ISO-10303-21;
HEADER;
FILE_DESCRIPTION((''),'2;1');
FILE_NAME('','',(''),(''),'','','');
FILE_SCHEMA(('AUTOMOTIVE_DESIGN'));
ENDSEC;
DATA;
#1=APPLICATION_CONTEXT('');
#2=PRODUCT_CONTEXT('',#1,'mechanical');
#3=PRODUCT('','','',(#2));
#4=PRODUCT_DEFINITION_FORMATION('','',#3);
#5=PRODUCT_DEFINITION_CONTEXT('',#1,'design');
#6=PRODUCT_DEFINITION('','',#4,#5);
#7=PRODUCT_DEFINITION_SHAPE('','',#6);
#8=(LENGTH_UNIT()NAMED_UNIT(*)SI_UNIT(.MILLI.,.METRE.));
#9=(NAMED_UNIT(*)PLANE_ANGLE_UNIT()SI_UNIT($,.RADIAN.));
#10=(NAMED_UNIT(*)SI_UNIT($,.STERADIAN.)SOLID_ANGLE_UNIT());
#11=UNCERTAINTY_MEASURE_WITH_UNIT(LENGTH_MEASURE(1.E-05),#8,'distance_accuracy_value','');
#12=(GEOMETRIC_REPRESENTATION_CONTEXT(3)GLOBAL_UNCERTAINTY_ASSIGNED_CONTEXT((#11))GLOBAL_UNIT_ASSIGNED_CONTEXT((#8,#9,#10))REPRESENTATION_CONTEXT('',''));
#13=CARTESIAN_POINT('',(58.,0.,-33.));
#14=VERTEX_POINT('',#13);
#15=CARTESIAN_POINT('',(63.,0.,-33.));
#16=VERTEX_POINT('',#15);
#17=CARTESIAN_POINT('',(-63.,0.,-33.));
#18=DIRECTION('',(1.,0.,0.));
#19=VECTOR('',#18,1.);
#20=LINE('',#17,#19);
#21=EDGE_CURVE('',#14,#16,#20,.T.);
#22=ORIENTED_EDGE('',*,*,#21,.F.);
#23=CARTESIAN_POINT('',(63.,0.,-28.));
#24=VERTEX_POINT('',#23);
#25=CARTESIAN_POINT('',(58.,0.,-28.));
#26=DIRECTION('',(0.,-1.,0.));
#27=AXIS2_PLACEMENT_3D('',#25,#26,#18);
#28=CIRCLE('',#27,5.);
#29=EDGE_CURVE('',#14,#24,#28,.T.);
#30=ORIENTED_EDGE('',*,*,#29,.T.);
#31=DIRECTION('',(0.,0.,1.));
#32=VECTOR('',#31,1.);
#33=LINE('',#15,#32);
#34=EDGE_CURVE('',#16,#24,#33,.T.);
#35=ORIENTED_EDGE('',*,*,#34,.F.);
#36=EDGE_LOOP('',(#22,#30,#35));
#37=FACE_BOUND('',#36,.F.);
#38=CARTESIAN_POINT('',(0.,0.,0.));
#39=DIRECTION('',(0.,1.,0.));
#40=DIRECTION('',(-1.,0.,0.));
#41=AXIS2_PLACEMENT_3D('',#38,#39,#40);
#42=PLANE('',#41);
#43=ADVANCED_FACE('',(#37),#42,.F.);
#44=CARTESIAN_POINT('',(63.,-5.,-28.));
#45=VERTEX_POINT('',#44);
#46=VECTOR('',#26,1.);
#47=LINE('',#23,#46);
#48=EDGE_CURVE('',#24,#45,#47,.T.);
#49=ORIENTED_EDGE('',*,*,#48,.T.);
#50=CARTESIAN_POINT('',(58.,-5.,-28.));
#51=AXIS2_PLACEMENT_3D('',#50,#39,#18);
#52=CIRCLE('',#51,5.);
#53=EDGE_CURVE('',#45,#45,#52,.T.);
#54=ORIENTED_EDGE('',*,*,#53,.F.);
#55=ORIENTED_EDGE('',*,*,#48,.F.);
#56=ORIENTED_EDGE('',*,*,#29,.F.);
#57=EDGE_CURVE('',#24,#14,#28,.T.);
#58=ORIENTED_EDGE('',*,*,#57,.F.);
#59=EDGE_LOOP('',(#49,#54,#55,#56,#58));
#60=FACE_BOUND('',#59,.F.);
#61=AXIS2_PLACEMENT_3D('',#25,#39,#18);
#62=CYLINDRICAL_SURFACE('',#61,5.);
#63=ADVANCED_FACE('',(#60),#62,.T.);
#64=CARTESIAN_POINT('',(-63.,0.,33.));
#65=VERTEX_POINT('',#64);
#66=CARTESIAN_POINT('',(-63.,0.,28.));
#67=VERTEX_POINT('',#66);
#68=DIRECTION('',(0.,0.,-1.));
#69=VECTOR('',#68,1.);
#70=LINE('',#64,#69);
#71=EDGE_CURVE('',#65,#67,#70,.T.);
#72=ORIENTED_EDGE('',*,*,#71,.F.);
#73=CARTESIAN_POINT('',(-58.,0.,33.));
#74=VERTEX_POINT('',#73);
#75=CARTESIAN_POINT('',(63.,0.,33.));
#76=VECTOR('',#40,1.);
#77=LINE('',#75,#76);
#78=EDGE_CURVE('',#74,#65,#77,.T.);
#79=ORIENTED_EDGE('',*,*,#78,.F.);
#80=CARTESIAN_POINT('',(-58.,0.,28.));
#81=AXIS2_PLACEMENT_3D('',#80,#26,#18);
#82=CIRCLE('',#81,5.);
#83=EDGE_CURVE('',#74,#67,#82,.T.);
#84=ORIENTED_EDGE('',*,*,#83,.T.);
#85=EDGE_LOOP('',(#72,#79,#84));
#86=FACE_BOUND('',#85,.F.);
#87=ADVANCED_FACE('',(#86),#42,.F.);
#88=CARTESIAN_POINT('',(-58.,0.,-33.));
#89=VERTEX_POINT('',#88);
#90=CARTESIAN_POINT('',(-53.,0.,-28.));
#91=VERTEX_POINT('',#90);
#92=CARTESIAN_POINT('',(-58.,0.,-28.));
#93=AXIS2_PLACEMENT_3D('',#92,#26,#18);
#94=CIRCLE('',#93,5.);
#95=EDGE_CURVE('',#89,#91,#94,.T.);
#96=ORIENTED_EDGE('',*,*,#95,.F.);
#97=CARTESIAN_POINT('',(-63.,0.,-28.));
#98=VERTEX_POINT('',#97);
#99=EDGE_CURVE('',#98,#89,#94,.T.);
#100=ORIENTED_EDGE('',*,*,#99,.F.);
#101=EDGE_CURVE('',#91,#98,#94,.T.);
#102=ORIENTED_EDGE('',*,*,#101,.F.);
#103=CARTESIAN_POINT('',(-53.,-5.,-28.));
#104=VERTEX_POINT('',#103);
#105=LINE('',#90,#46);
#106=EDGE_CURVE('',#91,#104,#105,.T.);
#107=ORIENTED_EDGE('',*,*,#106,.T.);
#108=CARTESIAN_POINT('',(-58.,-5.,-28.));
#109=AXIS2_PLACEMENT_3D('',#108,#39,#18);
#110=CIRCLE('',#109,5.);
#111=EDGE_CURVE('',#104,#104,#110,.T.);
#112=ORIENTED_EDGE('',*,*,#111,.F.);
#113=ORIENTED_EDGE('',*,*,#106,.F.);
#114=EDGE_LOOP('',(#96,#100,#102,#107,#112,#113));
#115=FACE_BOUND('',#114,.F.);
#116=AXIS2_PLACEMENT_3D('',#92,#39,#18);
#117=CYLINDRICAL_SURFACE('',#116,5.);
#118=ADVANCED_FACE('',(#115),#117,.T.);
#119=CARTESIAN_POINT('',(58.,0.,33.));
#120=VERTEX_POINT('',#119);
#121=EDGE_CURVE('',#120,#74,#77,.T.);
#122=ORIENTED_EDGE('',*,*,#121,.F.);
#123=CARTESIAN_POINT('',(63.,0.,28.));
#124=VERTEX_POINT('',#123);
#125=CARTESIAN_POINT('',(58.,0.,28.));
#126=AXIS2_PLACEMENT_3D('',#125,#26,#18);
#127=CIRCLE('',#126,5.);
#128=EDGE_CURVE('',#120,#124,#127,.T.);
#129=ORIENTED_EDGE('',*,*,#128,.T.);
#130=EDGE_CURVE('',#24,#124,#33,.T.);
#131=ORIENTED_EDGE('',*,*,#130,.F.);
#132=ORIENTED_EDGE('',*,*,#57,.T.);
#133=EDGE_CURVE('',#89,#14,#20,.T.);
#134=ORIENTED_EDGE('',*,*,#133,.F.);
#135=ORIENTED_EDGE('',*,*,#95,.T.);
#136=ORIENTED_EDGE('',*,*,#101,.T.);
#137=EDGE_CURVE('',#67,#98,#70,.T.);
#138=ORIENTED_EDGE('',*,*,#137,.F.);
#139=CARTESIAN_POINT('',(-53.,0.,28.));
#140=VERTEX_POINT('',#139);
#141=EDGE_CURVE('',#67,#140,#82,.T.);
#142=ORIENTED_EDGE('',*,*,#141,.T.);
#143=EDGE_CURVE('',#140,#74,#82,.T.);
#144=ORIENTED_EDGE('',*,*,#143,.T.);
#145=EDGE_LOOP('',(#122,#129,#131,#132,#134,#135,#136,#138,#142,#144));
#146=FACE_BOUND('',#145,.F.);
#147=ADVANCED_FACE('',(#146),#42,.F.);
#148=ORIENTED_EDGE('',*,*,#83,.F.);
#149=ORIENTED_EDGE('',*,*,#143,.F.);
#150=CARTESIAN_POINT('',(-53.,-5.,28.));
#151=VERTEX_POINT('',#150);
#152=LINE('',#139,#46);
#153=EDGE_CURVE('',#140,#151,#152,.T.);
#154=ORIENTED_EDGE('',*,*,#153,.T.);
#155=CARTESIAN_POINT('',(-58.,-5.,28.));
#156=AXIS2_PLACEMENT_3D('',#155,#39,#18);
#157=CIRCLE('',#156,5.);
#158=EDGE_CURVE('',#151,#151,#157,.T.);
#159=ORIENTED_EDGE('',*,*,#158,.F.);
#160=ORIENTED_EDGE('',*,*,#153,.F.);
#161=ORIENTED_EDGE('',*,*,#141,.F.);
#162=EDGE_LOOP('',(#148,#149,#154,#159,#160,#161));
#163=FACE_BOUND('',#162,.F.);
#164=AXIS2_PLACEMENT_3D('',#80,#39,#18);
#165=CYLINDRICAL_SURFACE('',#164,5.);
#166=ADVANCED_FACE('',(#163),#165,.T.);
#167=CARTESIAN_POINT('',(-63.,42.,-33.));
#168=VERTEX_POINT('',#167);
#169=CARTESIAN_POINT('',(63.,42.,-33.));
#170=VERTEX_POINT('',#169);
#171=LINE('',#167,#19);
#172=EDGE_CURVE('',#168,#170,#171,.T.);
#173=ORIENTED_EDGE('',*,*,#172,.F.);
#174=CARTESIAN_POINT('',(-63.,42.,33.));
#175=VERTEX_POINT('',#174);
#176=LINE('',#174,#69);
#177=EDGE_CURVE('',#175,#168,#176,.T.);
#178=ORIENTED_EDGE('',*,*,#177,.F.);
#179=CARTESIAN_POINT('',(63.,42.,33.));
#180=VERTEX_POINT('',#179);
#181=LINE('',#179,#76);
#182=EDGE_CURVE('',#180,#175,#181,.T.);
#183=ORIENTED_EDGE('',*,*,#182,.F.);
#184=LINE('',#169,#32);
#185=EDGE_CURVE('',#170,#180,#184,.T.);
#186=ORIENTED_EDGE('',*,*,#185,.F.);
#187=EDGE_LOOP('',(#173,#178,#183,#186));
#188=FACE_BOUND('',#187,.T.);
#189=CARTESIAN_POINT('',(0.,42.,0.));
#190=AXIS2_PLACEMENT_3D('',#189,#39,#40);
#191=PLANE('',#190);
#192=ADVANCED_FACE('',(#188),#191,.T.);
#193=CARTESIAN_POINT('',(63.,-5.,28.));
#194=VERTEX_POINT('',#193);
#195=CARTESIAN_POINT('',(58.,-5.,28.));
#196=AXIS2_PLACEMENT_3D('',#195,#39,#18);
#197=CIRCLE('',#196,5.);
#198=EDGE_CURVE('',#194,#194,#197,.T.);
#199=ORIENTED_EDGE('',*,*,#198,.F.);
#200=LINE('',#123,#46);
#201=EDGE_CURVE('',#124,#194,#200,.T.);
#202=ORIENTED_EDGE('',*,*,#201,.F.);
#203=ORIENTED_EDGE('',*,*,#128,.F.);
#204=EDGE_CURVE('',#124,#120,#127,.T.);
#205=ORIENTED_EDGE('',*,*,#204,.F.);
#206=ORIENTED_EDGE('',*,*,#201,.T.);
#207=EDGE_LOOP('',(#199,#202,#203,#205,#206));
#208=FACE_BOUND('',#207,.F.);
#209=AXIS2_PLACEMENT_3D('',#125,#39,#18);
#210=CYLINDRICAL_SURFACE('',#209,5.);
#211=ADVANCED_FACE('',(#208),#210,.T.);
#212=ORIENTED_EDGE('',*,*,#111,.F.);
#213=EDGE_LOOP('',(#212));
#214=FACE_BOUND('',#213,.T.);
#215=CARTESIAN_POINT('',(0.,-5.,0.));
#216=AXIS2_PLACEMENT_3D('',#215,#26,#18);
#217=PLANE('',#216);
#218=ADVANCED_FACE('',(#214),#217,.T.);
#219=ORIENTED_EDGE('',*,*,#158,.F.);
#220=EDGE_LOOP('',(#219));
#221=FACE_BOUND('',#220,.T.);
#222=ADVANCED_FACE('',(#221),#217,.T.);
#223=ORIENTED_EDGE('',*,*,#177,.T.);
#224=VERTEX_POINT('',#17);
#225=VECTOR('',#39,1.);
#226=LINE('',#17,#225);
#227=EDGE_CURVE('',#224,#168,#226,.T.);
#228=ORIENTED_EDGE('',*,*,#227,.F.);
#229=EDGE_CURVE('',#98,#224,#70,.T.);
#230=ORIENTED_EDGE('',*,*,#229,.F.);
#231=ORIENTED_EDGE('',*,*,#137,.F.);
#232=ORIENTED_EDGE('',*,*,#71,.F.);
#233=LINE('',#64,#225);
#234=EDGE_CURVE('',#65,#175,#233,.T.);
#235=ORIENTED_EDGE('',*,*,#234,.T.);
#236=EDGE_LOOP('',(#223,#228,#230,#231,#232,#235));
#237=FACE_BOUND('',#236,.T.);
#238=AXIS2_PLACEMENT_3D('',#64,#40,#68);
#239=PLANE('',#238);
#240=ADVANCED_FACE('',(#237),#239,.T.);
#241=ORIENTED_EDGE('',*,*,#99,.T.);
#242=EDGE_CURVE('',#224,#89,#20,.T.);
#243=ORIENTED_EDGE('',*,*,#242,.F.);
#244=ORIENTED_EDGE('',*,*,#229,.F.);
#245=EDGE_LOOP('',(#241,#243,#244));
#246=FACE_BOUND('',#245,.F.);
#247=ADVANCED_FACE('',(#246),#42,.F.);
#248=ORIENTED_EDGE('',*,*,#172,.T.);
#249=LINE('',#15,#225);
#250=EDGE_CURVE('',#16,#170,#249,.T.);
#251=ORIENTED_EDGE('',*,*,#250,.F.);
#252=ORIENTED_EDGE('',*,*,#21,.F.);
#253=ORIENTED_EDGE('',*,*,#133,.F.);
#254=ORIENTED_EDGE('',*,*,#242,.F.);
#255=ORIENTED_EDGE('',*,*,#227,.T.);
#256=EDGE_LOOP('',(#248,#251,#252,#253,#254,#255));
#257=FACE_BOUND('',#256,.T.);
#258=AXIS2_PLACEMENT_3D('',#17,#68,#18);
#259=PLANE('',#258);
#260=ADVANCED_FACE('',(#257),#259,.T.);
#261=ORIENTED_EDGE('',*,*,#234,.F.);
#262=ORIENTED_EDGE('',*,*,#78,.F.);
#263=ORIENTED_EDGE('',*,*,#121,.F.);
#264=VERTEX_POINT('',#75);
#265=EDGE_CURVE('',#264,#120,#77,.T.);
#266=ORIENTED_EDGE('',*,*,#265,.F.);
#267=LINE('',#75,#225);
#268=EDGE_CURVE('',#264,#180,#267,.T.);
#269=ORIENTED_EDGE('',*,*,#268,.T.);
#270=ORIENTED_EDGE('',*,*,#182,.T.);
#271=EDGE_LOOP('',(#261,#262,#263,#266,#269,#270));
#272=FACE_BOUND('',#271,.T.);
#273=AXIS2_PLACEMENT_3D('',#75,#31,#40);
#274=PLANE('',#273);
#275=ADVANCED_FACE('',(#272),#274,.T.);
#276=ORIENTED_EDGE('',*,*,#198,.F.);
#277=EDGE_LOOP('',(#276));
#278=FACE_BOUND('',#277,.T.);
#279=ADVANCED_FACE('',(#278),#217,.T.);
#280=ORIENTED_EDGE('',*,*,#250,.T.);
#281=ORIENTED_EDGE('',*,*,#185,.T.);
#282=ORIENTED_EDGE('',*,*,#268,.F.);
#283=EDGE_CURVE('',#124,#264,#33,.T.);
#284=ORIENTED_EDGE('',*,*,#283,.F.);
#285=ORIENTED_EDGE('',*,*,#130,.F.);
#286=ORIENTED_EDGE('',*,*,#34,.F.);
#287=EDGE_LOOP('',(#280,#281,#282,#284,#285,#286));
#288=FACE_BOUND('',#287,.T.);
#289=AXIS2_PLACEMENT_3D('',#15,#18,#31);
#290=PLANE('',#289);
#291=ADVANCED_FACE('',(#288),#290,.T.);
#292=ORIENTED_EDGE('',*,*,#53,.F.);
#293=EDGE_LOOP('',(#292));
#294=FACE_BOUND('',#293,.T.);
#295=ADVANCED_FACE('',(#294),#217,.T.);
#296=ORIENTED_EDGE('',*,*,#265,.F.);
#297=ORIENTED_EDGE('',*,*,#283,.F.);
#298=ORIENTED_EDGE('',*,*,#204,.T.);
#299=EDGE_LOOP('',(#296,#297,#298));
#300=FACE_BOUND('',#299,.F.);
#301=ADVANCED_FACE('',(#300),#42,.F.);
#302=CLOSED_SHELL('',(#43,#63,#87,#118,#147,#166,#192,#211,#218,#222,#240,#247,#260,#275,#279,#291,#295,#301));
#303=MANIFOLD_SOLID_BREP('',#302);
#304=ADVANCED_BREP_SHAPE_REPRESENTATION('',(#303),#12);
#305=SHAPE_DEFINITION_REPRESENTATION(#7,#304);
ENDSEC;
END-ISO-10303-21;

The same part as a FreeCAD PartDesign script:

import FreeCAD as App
import Part
import Sketcher

doc = App.newDocument("Part")
body = doc.addObject("PartDesign::Body", "Body")

# Sketch on XZ plane
sketch1 = doc.addObject("Sketcher::SketchObject", "Sketch")
body.addObject(sketch1)
sketch1.AttachmentSupport = (doc.XZ_Plane, [""])
sketch1.MapMode = "FlatFace"
sketch1.addGeometry([
    Part.LineSegment(App.Vector(63, -33, 0), App.Vector(-63, -33, 0)),
    Part.LineSegment(App.Vector(-63, -33, 0), App.Vector(-63, 33, 0)),
    Part.LineSegment(App.Vector(-63, 33, 0), App.Vector(63, 33, 0)),
    Part.LineSegment(App.Vector(63, 33, 0), App.Vector(63, -33, 0)),
], False)
sketch1.addConstraint([
    Sketcher.Constraint("Coincident", 0, 2, 1, 1),
    Sketcher.Constraint("Coincident", 1, 2, 2, 1),
    Sketcher.Constraint("Coincident", 2, 2, 3, 1),
    Sketcher.Constraint("Coincident", 3, 2, 0, 1),
    Sketcher.Constraint("Horizontal", 0),
    Sketcher.Constraint("Vertical", 1),
    Sketcher.Constraint("Horizontal", 2),
    Sketcher.Constraint("Vertical", 3),
    Sketcher.Constraint("Symmetric", 0, 2, 2, 2, -1, 1),
    Sketcher.Constraint("DistanceX", 0, 2, 0, 1, 126.0),
    Sketcher.Constraint("DistanceY", 1, 1, 1, 2, 66.0),
])
pad1 = doc.addObject("PartDesign::Pad", "Pad")
body.addObject(pad1)
pad1.Profile = sketch1
pad1.Length = 42
pad1.Reversed = True

# Sketch on XZ plane
sketch2 = doc.addObject("Sketcher::SketchObject", "Sketch001")
body.addObject(sketch2)
sketch2.AttachmentSupport = (doc.XZ_Plane, [""])
sketch2.MapMode = "FlatFace"
sketch2.addGeometry([
    Part.Circle(App.Vector(-58, -28, 0), App.Vector(0, 0, 1), 5),
    Part.Circle(App.Vector(58, -28, 0), App.Vector(0, 0, 1), 5),
    Part.Circle(App.Vector(-58, 28, 0), App.Vector(0, 0, 1), 5),
    Part.Circle(App.Vector(58, 28, 0), App.Vector(0, 0, 1), 5),
], False)
sketch2.addConstraint([
    Sketcher.Constraint("Equal", 0, 1),
    Sketcher.Constraint("Equal", 1, 2),
    Sketcher.Constraint("Equal", 2, 3),
    Sketcher.Constraint("Symmetric", 1, 3, 2, 3, -1, 1),
    Sketcher.Constraint("Symmetric", 0, 3, 3, 3, -1, 1),
    Sketcher.Constraint("Symmetric", 0, 3, 1, 3, -2),
    Sketcher.Constraint("Diameter", 0, 10.0),
    Sketcher.Constraint("DistanceX", 0, 3, -1, 1, 58.0),
    Sketcher.Constraint("DistanceY", 0, 3, -1, 1, 28.0),
])
pad2 = doc.addObject("PartDesign::Pad", "Pad001")
body.addObject(pad2)
pad2.Profile = sketch2
pad2.Length = 5

doc.recompute()
